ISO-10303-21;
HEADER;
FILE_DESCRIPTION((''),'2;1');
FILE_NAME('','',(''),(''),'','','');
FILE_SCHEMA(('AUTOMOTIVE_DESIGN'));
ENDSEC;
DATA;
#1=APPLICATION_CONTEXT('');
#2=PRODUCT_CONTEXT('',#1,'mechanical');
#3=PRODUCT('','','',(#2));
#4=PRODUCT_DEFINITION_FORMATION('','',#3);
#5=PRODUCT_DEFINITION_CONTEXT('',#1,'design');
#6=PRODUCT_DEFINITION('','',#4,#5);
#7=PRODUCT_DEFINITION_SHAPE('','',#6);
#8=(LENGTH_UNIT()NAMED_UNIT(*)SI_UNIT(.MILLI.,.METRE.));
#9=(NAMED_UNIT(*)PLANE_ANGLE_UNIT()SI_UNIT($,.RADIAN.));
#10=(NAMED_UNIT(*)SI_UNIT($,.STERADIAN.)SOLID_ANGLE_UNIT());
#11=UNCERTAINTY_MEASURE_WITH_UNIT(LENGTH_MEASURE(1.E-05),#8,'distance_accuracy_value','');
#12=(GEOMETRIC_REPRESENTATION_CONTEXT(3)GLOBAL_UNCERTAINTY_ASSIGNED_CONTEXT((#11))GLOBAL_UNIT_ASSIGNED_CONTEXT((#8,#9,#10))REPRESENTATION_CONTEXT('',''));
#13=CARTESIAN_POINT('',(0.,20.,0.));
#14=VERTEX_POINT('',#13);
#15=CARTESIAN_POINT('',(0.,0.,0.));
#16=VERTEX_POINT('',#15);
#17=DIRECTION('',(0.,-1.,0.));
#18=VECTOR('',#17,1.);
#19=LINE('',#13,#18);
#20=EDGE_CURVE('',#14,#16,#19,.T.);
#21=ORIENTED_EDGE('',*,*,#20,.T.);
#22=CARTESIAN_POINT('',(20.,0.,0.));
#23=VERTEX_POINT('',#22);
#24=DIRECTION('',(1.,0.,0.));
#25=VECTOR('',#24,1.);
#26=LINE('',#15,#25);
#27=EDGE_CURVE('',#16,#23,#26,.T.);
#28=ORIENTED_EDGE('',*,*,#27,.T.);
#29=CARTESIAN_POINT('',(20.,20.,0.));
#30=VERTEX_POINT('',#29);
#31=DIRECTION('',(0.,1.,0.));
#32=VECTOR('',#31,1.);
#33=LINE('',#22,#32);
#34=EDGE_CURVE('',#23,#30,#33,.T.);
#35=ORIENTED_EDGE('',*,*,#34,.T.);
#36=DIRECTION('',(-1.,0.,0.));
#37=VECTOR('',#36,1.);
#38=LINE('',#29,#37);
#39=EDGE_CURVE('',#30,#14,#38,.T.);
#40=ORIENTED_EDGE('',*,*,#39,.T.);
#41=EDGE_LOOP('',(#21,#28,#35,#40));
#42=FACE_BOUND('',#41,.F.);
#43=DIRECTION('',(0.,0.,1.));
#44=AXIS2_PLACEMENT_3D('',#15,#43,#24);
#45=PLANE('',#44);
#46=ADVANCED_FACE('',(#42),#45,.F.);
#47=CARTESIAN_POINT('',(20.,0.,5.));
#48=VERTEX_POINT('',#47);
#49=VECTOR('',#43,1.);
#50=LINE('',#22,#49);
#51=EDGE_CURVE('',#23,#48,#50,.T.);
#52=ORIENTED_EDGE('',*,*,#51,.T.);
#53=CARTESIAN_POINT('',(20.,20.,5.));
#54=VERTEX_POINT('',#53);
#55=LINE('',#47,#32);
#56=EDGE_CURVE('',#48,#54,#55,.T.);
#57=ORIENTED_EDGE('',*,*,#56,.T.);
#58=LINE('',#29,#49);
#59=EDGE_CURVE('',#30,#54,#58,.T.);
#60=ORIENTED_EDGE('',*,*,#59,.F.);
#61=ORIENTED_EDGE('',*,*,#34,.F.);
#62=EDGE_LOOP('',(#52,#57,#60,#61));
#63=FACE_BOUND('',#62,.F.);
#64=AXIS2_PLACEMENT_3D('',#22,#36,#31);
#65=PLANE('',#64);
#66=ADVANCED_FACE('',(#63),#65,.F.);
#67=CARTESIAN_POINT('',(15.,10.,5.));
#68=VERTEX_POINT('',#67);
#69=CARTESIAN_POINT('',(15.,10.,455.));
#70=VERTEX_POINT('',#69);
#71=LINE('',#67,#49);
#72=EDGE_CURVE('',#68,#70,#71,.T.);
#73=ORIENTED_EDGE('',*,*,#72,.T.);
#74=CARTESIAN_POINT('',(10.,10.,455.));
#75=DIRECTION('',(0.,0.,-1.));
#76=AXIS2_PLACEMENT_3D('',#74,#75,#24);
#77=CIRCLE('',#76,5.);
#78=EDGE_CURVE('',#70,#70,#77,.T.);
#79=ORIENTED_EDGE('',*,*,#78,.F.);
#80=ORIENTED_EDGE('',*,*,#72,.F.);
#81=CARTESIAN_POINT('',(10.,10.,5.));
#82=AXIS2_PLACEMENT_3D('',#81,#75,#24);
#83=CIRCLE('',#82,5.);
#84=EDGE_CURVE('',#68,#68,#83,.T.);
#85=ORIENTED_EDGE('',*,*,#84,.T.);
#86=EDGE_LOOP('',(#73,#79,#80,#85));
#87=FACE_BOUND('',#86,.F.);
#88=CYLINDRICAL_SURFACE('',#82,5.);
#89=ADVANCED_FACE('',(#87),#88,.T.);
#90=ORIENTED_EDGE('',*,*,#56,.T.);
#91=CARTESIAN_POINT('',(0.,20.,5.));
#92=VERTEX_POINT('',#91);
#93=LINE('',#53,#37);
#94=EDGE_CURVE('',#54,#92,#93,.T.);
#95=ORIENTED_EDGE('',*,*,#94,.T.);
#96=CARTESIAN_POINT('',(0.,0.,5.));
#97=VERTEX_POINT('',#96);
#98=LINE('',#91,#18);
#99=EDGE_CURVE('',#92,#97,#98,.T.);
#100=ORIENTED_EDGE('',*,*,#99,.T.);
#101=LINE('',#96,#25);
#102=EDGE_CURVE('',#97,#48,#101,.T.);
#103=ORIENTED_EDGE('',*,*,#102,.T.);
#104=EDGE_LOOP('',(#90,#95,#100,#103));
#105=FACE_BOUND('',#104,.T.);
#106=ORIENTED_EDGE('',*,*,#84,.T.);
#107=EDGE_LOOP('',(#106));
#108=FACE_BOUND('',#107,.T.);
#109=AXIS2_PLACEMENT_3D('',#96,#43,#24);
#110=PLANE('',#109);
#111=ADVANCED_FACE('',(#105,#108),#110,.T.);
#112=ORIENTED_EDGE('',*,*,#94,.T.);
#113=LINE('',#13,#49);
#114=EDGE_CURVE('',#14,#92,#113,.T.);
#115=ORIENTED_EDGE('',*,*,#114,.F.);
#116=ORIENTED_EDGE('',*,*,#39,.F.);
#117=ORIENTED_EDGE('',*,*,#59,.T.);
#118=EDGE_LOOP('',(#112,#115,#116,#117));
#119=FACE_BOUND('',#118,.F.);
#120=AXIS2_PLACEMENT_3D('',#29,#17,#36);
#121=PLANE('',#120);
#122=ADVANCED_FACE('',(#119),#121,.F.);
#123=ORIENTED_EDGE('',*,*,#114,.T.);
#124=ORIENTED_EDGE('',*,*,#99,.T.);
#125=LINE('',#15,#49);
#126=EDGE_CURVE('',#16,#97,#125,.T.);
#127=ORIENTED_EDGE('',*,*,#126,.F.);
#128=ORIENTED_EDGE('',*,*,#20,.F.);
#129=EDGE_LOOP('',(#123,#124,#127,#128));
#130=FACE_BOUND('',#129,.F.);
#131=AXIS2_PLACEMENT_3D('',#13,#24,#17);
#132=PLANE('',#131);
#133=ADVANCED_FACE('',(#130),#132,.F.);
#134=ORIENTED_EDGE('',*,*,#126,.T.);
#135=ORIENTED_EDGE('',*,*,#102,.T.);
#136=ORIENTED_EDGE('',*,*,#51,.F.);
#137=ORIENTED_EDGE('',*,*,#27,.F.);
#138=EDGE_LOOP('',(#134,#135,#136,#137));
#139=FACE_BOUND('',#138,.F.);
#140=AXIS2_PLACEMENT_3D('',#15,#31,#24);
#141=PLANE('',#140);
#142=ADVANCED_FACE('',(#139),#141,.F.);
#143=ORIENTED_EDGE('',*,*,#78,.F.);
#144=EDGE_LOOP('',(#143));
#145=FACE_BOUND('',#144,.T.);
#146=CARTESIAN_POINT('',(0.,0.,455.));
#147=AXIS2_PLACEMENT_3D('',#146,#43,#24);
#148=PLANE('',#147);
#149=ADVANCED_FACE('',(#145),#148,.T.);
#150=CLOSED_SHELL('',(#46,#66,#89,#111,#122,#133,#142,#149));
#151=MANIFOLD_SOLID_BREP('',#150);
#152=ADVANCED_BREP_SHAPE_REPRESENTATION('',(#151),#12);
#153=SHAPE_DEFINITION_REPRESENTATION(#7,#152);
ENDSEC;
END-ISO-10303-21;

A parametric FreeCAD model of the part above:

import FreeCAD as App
import Part
import Sketcher
from FreeCAD import Vector


def add_polygon(sketch, points):
    """Adds a closed chain of lines whose ends are joined by coincident constraints."""
    first, n = sketch.GeometryCount, len(points)
    for a, b in zip(points, points[1:] + points[:1]):
        sketch.addGeometry(Part.LineSegment(App.Vector(*a, 0), App.Vector(*b, 0)), False)
    for i in range(n):
        sketch.addConstraint(Sketcher.Constraint("Coincident", first + i, 2, first + (i + 1) % n, 1))

doc = App.newDocument("Part")
body = doc.addObject("PartDesign::Body", "Body")

# Sketch on XY plane
sketch1 = doc.addObject("Sketcher::SketchObject", "Sketch")
body.addObject(sketch1)
sketch1.AttachmentSupport = (doc.XY_Plane, [""])
sketch1.MapMode = "FlatFace"
add_polygon(sketch1, [(0, 20), (0, 0), (20, 0), (20, 20)])  # lines 0-3
sketch1.addConstraint([
    Sketcher.Constraint("Vertical", 0),
    Sketcher.Constraint("Horizontal", 1),
    Sketcher.Constraint("Vertical", 2),
    Sketcher.Constraint("Horizontal", 3),
    Sketcher.Constraint("Coincident", 0, 2, -1, 1),
    Sketcher.Constraint("Equal", 3, 0),
    Sketcher.Constraint("DistanceX", 1, 1, 1, 2, 20.0),
])
pad1 = doc.addObject("PartDesign::Pad", "Pad")
body.addObject(pad1)
pad1.Profile = sketch1
pad1.Length = 5

# Sketch on XY plane
sketch2 = doc.addObject("Sketcher::SketchObject", "Sketch001")
body.addObject(sketch2)
sketch2.AttachmentSupport = (doc.XY_Plane, [""])
sketch2.MapMode = "FlatFace"
sketch2.AttachmentOffset = App.Placement(Vector(0, 0, 5), App.Rotation())
sketch2.addGeometry(Part.Circle(Vector(10, 10, 0), Vector(0, 0, 1), 5), False)
sketch2.addConstraint([
    Sketcher.Constraint("Diameter", 0, 10.0),
    Sketcher.Constraint("DistanceX", -1, 1, 0, 3, 10.0),
    Sketcher.Constraint("DistanceY", -1, 1, 0, 3, 10.0),
])
pad2 = doc.addObject("PartDesign::Pad", "Pad001")
body.addObject(pad2)
pad2.Profile = sketch2
pad2.Length = 450

doc.recompute()
